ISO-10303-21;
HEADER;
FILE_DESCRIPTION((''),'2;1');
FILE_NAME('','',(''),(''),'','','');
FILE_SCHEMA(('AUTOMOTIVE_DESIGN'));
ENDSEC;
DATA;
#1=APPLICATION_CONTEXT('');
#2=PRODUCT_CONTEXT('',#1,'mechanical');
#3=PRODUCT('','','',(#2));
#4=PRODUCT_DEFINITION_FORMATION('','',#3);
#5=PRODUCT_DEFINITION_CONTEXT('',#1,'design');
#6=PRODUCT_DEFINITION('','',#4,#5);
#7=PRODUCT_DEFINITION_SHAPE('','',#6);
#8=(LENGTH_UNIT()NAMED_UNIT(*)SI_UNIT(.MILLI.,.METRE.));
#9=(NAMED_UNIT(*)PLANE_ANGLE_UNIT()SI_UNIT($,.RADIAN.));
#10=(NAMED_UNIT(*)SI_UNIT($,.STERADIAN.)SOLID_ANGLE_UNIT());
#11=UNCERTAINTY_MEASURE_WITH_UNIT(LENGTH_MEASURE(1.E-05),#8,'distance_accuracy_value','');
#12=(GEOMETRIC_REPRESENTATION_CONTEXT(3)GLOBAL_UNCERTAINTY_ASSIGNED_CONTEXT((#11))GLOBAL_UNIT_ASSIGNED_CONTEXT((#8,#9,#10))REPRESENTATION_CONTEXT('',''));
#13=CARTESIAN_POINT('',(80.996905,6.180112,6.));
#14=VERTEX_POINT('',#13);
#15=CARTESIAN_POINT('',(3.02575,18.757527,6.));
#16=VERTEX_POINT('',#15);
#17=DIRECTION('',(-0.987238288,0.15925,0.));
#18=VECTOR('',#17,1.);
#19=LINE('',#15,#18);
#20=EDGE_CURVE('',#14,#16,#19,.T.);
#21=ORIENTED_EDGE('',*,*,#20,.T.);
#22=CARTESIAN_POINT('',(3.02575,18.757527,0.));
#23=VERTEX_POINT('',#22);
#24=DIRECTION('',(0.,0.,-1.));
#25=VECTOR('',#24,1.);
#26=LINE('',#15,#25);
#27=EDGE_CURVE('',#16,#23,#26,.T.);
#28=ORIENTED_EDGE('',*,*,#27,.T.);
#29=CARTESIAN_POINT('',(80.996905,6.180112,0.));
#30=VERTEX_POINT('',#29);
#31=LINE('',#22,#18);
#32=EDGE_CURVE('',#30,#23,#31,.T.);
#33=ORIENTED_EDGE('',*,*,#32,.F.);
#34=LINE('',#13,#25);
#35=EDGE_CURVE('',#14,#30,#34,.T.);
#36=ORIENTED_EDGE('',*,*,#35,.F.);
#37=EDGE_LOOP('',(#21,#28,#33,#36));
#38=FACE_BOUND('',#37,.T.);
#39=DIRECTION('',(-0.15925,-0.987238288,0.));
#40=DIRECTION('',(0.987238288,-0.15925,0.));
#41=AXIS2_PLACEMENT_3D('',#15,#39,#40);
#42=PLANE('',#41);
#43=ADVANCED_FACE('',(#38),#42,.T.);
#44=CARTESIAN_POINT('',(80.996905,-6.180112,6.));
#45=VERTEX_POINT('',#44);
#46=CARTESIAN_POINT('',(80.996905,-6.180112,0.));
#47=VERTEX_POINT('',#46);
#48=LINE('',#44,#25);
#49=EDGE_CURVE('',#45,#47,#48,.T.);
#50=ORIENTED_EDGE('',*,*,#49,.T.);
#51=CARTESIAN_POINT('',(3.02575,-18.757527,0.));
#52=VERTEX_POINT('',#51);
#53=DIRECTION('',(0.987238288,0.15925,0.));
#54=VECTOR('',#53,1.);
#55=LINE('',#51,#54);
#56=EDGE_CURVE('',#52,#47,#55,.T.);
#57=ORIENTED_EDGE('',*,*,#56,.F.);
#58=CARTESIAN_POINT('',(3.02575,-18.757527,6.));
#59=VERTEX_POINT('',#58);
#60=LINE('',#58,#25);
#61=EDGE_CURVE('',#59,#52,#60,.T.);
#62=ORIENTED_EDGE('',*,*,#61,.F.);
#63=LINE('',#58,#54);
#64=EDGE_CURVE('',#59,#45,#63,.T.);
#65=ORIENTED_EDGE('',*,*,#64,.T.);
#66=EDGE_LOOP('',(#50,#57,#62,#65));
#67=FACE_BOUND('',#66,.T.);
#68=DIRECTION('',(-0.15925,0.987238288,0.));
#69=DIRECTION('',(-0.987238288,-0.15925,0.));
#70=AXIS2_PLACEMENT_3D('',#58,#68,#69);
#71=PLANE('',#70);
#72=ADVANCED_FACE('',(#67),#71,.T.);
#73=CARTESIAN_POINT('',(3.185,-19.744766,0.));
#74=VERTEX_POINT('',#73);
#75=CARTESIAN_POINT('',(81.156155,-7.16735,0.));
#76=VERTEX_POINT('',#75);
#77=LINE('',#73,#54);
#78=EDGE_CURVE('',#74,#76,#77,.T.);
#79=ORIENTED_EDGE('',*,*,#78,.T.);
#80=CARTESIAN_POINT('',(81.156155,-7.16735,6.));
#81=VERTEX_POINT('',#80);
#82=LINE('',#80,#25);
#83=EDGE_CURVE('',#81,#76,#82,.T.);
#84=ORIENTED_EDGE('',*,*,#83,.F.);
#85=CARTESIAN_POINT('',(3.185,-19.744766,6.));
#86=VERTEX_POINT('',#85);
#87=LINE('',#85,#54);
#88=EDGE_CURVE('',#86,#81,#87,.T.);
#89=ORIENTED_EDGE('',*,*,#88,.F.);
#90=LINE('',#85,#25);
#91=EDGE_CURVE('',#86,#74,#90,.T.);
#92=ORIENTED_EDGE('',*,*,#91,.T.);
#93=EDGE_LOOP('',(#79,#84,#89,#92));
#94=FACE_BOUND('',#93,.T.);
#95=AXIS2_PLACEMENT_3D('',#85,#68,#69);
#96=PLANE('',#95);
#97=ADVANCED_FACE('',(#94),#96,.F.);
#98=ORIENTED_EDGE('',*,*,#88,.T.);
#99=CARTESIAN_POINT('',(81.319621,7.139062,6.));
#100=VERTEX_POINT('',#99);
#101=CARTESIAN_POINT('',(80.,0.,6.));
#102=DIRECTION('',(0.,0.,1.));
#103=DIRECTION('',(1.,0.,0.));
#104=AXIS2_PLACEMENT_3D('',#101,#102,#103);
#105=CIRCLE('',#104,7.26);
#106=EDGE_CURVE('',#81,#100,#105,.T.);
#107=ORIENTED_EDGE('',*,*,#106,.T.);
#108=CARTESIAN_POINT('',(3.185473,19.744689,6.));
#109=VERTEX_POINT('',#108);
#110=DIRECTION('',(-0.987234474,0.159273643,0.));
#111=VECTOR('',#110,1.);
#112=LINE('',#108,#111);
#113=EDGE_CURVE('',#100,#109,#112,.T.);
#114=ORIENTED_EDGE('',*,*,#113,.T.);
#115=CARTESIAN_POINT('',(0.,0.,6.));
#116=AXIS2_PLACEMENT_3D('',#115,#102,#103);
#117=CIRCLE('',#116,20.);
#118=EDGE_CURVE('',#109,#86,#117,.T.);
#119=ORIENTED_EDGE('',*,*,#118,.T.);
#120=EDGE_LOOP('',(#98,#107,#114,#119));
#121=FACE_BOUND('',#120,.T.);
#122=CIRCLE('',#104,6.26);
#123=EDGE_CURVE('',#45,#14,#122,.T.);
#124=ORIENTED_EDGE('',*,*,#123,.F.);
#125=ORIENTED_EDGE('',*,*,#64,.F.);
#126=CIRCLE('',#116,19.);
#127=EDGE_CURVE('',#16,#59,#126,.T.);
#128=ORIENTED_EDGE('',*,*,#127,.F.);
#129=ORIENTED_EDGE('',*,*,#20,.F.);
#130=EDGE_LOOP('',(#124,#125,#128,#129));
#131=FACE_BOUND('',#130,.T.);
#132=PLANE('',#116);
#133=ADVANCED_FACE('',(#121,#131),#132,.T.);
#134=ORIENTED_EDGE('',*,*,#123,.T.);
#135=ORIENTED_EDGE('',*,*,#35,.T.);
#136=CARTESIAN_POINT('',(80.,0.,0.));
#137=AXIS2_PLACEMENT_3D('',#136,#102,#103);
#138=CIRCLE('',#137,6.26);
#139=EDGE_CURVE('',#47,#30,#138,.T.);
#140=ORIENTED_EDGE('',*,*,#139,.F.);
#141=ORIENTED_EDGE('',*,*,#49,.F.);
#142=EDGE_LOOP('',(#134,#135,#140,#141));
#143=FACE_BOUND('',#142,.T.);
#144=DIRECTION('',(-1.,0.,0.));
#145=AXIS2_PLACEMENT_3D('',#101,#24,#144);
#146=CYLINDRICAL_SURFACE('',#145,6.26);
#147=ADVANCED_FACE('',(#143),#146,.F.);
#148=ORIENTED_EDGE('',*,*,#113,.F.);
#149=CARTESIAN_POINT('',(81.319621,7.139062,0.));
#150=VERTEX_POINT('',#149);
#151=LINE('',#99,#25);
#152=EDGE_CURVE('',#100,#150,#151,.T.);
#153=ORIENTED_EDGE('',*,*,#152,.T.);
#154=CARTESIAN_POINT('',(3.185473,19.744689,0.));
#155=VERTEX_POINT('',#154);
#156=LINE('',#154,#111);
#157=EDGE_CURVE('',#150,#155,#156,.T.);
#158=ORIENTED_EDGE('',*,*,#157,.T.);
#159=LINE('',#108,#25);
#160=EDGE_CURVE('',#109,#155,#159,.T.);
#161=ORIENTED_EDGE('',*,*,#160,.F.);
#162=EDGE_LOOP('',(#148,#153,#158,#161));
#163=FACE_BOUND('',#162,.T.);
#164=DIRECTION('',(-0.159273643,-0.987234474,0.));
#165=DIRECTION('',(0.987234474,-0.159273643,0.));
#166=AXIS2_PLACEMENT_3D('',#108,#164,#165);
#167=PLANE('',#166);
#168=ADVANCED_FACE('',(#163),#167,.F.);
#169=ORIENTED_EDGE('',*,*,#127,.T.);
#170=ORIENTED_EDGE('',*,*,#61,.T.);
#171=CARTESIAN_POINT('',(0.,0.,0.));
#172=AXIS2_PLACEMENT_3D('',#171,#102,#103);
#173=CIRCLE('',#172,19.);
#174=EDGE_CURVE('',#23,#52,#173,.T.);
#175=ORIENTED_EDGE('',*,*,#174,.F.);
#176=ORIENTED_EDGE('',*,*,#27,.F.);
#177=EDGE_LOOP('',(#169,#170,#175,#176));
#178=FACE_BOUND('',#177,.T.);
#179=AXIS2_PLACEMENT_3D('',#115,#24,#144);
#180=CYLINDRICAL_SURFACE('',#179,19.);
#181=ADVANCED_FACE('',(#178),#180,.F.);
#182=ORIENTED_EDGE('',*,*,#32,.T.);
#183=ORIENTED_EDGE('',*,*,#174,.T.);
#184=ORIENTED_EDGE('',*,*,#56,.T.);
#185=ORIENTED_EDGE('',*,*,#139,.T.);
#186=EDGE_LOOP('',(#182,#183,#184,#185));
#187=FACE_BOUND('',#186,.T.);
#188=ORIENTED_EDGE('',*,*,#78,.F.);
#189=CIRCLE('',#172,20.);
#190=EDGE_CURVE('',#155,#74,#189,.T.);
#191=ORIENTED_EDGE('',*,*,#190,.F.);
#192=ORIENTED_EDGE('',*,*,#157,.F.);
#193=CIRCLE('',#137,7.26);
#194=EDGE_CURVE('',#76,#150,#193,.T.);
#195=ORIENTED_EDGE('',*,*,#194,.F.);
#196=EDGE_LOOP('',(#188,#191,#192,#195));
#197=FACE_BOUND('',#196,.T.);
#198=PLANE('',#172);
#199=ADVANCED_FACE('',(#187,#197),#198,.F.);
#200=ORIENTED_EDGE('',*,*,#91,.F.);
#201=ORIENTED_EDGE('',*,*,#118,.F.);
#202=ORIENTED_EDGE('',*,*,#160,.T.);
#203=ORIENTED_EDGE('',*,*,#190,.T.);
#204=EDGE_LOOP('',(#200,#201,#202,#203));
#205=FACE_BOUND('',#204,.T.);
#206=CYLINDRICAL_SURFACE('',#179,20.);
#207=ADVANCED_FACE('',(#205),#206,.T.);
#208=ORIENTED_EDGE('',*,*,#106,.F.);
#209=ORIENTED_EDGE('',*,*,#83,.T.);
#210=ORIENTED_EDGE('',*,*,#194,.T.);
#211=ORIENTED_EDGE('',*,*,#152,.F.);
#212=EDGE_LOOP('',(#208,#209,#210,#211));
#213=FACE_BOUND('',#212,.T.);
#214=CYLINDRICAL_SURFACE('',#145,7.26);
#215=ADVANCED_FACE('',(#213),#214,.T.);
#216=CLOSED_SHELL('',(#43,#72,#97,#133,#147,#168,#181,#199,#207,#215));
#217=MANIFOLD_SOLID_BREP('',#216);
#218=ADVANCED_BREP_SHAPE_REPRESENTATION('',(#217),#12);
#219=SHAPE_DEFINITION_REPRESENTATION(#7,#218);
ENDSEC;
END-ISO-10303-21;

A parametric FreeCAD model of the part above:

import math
import FreeCAD as App
import Part
import Sketcher
Q = App.Units.Quantity

doc = App.newDocument("Part")
body = doc.addObject("PartDesign::Body", "Body")

sketch1 = body.newObject("Sketcher::SketchObject", "Sketch")
sketch1.AttachmentSupport = (doc.getObject("XY_Plane"), [""])
sketch1.MapMode = "FlatFace"
sketch1.addGeometry([
    Part.LineSegment(App.Vector(3, -20, 0), App.Vector(81, -7, 0)),
    Part.ArcOfCircle(Part.Circle(App.Vector(80, 0, 0), App.Vector(0, 0, 1), 7), math.radians(-81), math.radians(80)),
    Part.LineSegment(App.Vector(81, 7, 0), App.Vector(3, 20, 0)),
    Part.ArcOfCircle(Part.Circle(App.Vector(0, 0, 0), App.Vector(0, 0, 1), 20), math.radians(81), math.radians(279)),
    Part.LineSegment(App.Vector(81, -6, 0), App.Vector(3, -19, 0)),
    Part.ArcOfCircle(Part.Circle(App.Vector(0, 0, 0), App.Vector(0, 0, 1), 19), math.radians(81), math.radians(279)),
    Part.LineSegment(App.Vector(3, 19, 0), App.Vector(81, 6, 0)),
    Part.ArcOfCircle(Part.Circle(App.Vector(80, 0, 0), App.Vector(0, 0, 1), 6), math.radians(-81), math.radians(81)),
], False)
sketch1.addConstraint([
    Sketcher.Constraint("Tangent", 0, 2, 1, 1),
    Sketcher.Constraint("Coincident", 1, 2, 2, 1),
    Sketcher.Constraint("Tangent", 2, 2, 3, 1),
    Sketcher.Constraint("Tangent", 3, 2, 0, 1),
    Sketcher.Constraint("Tangent", 4, 2, 5, 2),
    Sketcher.Constraint("Tangent", 5, 1, 6, 1),
    Sketcher.Constraint("Tangent", 6, 2, 7, 2),
    Sketcher.Constraint("Tangent", 7, 1, 4, 1),
    Sketcher.Constraint("Coincident", 3, 3, -1, 1),
    Sketcher.Constraint("Coincident", 5, 3, -1, 1),
    Sketcher.Constraint("Coincident", 7, 3, 1, 3),
    Sketcher.Constraint("PointOnObject", 1, 3, -1),
    Sketcher.Constraint("Parallel", 0, 4),
    Sketcher.Constraint("Radius", 3, Q("20 mm")),
    Sketcher.Constraint("Radius", 5, Q("19 mm")),
    Sketcher.Constraint("Radius", 1, Q("7.26 mm")),
    Sketcher.Constraint("DistanceX", -1, 1, 1, 3, Q("80 mm")),
    Sketcher.Constraint("Distance", 2, Q("79.144469 mm")),
])
pad1 = body.newObject("PartDesign::Pad", "Pad")
pad1.Profile = sketch1
pad1.Length = 6

doc.recompute()
